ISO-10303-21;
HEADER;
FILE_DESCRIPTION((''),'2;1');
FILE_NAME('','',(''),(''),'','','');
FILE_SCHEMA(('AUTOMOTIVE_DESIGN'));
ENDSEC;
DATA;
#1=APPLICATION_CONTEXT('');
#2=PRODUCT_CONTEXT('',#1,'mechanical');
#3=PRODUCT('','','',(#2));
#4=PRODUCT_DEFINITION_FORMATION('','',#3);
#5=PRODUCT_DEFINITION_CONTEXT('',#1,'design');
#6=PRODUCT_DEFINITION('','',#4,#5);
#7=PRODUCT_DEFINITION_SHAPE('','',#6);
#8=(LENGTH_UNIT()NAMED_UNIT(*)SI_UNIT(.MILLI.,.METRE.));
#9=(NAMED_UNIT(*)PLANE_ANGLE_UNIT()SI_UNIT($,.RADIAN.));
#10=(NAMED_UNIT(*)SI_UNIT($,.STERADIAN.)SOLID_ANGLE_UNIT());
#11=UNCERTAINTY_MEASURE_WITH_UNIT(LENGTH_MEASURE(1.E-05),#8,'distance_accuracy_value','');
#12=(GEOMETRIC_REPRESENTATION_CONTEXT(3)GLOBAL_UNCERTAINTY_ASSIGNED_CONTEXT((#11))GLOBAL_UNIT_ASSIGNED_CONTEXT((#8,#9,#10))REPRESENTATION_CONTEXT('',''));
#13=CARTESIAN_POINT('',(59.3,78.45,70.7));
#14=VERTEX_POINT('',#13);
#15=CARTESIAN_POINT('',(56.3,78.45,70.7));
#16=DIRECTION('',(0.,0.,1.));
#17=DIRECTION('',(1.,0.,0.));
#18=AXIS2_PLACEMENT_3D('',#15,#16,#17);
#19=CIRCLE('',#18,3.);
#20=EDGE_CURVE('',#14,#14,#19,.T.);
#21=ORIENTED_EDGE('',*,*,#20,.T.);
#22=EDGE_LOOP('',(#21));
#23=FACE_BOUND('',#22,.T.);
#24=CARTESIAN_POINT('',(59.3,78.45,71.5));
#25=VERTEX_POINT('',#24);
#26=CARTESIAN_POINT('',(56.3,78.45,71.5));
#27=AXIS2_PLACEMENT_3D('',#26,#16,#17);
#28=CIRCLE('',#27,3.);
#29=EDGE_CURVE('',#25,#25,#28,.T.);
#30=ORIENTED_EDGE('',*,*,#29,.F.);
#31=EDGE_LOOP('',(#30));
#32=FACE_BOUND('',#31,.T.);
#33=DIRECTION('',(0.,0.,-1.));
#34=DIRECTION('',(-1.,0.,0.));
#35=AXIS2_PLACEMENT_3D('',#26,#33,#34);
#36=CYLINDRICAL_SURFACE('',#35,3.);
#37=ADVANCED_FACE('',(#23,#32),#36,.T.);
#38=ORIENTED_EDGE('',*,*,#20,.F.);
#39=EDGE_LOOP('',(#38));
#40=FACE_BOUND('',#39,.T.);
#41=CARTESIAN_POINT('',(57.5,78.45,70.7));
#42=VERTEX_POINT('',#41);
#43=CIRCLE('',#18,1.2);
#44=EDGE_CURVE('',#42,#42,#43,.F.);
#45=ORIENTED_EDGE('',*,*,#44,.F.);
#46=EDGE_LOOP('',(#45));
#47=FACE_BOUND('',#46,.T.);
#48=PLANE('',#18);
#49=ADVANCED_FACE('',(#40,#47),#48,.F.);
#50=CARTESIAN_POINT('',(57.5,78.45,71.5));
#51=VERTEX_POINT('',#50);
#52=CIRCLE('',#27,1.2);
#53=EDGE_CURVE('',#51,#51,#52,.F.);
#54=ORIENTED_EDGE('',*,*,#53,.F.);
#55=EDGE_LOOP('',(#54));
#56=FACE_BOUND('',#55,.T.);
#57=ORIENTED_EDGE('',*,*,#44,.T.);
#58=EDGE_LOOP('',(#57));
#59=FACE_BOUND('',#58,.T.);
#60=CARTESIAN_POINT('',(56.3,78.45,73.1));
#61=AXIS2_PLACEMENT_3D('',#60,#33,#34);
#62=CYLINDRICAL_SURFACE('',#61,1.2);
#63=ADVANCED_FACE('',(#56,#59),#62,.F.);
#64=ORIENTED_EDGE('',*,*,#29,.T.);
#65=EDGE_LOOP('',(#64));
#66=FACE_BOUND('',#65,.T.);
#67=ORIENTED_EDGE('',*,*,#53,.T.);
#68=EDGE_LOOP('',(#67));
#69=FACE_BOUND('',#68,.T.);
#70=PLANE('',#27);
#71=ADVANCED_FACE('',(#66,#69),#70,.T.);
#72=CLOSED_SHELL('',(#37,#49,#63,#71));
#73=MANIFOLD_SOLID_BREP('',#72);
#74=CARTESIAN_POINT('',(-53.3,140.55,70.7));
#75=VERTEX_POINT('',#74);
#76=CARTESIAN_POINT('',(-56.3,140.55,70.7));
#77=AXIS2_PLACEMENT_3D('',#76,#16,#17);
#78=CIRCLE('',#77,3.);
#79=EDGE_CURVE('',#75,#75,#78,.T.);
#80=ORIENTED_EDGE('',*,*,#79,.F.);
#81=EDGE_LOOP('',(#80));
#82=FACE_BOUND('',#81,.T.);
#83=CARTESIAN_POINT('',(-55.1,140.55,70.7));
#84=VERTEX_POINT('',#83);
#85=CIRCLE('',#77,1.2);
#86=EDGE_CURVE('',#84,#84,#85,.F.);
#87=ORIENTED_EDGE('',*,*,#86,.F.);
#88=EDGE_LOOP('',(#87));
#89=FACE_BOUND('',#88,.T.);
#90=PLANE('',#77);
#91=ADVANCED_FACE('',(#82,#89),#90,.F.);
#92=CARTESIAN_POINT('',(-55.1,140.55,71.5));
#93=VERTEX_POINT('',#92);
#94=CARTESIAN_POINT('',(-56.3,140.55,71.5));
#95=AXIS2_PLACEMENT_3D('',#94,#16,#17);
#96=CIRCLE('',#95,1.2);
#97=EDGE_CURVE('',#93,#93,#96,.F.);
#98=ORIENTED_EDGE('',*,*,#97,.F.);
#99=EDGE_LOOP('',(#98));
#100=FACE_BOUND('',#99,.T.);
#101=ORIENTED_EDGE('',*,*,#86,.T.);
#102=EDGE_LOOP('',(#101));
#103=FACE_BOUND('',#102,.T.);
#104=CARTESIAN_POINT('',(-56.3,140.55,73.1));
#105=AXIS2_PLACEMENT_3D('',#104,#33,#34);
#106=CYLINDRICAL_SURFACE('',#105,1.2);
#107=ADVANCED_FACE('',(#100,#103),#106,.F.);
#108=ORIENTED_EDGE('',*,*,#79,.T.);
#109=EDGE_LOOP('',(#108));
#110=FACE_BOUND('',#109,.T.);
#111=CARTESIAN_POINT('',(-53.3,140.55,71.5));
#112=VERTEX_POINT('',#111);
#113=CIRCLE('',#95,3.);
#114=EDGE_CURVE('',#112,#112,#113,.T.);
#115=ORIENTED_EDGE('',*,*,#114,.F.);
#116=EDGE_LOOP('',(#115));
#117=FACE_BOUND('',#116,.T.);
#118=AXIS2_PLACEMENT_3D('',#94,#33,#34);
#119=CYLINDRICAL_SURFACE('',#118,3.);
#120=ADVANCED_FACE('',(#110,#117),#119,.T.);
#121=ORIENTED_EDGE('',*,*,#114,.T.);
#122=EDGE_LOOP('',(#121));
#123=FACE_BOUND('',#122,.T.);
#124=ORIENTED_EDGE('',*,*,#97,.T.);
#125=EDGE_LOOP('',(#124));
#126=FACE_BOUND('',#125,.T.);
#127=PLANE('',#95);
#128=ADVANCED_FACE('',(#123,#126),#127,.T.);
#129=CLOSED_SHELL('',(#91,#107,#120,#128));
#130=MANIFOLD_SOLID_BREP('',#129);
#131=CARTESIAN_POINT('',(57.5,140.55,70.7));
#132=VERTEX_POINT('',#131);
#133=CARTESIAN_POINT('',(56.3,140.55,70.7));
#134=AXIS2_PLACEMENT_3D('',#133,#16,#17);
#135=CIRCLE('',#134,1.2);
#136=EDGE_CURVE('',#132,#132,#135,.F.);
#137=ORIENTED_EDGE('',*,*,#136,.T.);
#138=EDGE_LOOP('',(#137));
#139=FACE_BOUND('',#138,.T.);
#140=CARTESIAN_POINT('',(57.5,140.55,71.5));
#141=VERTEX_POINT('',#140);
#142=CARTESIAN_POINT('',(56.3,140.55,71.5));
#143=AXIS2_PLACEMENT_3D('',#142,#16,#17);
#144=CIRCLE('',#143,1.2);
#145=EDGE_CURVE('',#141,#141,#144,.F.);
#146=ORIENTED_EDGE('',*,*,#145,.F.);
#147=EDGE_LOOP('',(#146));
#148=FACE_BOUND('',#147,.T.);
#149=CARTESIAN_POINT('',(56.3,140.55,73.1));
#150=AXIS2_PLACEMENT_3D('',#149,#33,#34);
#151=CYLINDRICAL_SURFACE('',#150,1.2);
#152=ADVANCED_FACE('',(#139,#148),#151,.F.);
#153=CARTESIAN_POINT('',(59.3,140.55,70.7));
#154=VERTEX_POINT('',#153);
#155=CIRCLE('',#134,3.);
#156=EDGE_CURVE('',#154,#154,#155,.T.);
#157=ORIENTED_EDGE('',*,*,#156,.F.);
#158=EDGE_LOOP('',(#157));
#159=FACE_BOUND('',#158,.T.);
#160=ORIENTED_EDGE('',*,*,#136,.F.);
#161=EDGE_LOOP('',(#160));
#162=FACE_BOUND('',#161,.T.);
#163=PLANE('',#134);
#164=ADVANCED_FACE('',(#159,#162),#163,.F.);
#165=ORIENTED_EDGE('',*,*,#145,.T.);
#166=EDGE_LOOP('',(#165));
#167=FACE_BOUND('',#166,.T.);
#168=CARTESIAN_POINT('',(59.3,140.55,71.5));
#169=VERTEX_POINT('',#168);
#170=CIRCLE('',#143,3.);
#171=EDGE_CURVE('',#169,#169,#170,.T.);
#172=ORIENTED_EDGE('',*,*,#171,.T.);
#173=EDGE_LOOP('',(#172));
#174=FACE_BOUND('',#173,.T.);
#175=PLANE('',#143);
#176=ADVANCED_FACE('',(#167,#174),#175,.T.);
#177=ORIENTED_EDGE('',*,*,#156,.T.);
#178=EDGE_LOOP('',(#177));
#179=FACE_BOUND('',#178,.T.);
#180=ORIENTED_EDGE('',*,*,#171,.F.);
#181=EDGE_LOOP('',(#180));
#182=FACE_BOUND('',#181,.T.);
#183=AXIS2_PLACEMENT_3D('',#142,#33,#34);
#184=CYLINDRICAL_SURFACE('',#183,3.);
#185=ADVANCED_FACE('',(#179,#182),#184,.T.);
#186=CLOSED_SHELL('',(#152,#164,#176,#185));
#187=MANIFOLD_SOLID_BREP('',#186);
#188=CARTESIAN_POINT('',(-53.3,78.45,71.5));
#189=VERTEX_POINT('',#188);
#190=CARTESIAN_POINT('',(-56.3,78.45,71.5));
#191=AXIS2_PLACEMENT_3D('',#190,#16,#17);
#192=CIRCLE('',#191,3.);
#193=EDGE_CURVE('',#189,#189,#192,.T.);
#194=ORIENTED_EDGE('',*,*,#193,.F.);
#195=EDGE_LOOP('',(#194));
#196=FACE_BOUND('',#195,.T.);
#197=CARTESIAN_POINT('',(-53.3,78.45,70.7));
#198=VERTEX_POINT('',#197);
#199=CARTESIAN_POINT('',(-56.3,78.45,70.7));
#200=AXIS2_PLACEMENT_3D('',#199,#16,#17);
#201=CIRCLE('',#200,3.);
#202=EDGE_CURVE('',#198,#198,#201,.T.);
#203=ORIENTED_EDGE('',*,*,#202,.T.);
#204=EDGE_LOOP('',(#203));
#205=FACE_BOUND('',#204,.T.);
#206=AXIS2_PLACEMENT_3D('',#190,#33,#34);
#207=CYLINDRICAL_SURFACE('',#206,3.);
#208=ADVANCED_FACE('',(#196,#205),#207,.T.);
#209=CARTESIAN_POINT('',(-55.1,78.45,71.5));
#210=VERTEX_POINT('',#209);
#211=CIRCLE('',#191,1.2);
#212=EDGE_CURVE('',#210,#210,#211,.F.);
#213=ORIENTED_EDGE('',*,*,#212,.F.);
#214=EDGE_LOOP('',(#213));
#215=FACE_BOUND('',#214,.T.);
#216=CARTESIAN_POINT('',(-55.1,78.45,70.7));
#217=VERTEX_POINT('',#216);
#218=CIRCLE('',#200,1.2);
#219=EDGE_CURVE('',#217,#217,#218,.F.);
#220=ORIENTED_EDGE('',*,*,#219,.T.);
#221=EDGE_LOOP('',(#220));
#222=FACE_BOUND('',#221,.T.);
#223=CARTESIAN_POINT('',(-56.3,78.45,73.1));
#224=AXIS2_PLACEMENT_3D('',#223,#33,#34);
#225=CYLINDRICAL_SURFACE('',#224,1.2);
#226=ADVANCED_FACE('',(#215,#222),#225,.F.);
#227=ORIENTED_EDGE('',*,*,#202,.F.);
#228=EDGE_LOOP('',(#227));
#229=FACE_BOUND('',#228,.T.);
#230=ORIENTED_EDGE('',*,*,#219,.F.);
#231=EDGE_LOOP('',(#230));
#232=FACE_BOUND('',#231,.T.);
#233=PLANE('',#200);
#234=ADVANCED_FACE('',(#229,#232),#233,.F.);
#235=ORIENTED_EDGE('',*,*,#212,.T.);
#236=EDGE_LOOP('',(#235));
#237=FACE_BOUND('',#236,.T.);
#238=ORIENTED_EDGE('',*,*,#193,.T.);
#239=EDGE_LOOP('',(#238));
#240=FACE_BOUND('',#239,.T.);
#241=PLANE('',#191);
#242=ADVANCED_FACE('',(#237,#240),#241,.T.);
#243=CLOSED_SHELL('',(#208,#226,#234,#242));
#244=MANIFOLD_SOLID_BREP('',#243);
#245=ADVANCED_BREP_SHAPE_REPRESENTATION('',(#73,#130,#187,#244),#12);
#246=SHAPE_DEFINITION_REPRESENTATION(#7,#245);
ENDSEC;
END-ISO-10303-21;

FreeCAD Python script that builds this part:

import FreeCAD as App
import Part
import Sketcher
from FreeCAD import Vector

doc = App.newDocument("Part")
body = doc.addObject("PartDesign::Body", "Body")

# Sketch on XY plane
sketch1 = body.newObject("Sketcher::SketchObject", "Sketch")
sketch1.AttachmentSupport = (doc.getObject("XY_Plane"), [""])
sketch1.MapMode = "FlatFace"
sketch1.AttachmentOffset = App.Placement(Vector(0, 0, 70.7), App.Rotation())
sketch1.addGeometry(Part.Circle(Vector(-56.3, 78.45, 0), Vector(0, 0, 1), 3), False)
sketch1.addConstraint([
    Sketcher.Constraint("Diameter", 0, 6.0),
    Sketcher.Constraint("DistanceX", 0, 3, -1, 1, 56.3),
    Sketcher.Constraint("DistanceY", -1, 1, 0, 3, 78.45),
])
pad1 = body.newObject("PartDesign::Pad", "Pad")
pad1.Profile = sketch1
pad1.Length = 0.8
body2 = doc.addObject("PartDesign::Body", "Body001")

# Sketch on XY plane
sketch2 = body2.newObject("Sketcher::SketchObject", "Sketch001")
sketch2.AttachmentSupport = (doc.getObject("XY_Plane001"), [""])
sketch2.MapMode = "FlatFace"
sketch2.AttachmentOffset = App.Placement(Vector(0, 0, 70.1), App.Rotation())
sketch2.addGeometry(Part.Circle(Vector(-56.3, 78.45, 0), Vector(0, 0, 1), 1.2), False)
sketch2.addConstraint([
    Sketcher.Constraint("Diameter", 0, 2.4),
    Sketcher.Constraint("DistanceX", 0, 3, -1, 1, 56.3),
    Sketcher.Constraint("DistanceY", -1, 1, 0, 3, 78.45),
])
pad2 = body2.newObject("PartDesign::Pad", "Pad001")
pad2.Profile = sketch2
pad2.Length = 3
doc.recompute()

boolean = body.newObject("PartDesign::Boolean", "Boolean")
boolean.Type = "Cut"
boolean.addObjects([body2])
body3 = doc.addObject("PartDesign::Body", "Body002")

# Sketch on XY plane
sketch3 = body3.newObject("Sketcher::SketchObject", "Sketch002")
sketch3.AttachmentSupport = (doc.getObject("XY_Plane002"), [""])
sketch3.MapMode = "FlatFace"
sketch3.AttachmentOffset = App.Placement(Vector(0, 0, 70.7), App.Rotation())
sketch3.addGeometry(Part.Circle(Vector(-56.3, 140.55, 0), Vector(0, 0, 1), 3), False)
sketch3.addConstraint([
    Sketcher.Constraint("Diameter", 0, 6.0),
    Sketcher.Constraint("DistanceX", 0, 3, -1, 1, 56.3),
    Sketcher.Constraint("DistanceY", -1, 1, 0, 3, 140.55),
])
pad3 = body3.newObject("PartDesign::Pad", "Pad002")
pad3.Profile = sketch3
pad3.Length = 0.8
body4 = doc.addObject("PartDesign::Body", "Body003")

# Sketch on XY plane
sketch4 = body4.newObject("Sketcher::SketchObject", "Sketch003")
sketch4.AttachmentSupport = (doc.getObject("XY_Plane003"), [""])
sketch4.MapMode = "FlatFace"
sketch4.AttachmentOffset = App.Placement(Vector(0, 0, 70.1), App.Rotation())
sketch4.addGeometry(Part.Circle(Vector(-56.3, 140.55, 0), Vector(0, 0, 1), 1.2), False)
sketch4.addConstraint([
    Sketcher.Constraint("Diameter", 0, 2.4),
    Sketcher.Constraint("DistanceX", 0, 3, -1, 1, 56.3),
    Sketcher.Constraint("DistanceY", -1, 1, 0, 3, 140.55),
])
pad4 = body4.newObject("PartDesign::Pad", "Pad003")
pad4.Profile = sketch4
pad4.Length = 3
doc.recompute()

boolean2 = body3.newObject("PartDesign::Boolean", "Boolean001")
boolean2.Type = "Cut"
boolean2.addObjects([body4])
body5 = doc.addObject("PartDesign::Body", "Body004")

# Sketch on XY plane
sketch5 = body5.newObject("Sketcher::SketchObject", "Sketch004")
sketch5.AttachmentSupport = (doc.getObject("XY_Plane004"), [""])
sketch5.MapMode = "FlatFace"
sketch5.AttachmentOffset = App.Placement(Vector(0, 0, 70.7), App.Rotation())
sketch5.addGeometry(Part.Circle(Vector(56.3, 78.45, 0), Vector(0, 0, 1), 3), False)
sketch5.addConstraint([
    Sketcher.Constraint("Diameter", 0, 6.0),
    Sketcher.Constraint("DistanceX", -1, 1, 0, 3, 56.3),
    Sketcher.Constraint("DistanceY", -1, 1, 0, 3, 78.45),
])
pad5 = body5.newObject("PartDesign::Pad", "Pad004")
pad5.Profile = sketch5
pad5.Length = 0.8
body6 = doc.addObject("PartDesign::Body", "Body005")

# Sketch on XY plane
sketch6 = body6.newObject("Sketcher::SketchObject", "Sketch005")
sketch6.AttachmentSupport = (doc.getObject("XY_Plane005"), [""])
sketch6.MapMode = "FlatFace"
sketch6.AttachmentOffset = App.Placement(Vector(0, 0, 70.1), App.Rotation())
sketch6.addGeometry(Part.Circle(Vector(56.3, 78.45, 0), Vector(0, 0, 1), 1.2), False)
sketch6.addConstraint([
    Sketcher.Constraint("Diameter", 0, 2.4),
    Sketcher.Constraint("DistanceX", -1, 1, 0, 3, 56.3),
    Sketcher.Constraint("DistanceY", -1, 1, 0, 3, 78.45),
])
pad6 = body6.newObject("PartDesign::Pad", "Pad005")
pad6.Profile = sketch6
pad6.Length = 3
doc.recompute()

boolean3 = body5.newObject("PartDesign::Boolean", "Boolean002")
boolean3.Type = "Cut"
boolean3.addObjects([body6])
body7 = doc.addObject("PartDesign::Body", "Body006")

# Sketch on XY plane
sketch7 = body7.newObject("Sketcher::SketchObject", "Sketch006")
sketch7.AttachmentSupport = (doc.getObject("XY_Plane006"), [""])
sketch7.MapMode = "FlatFace"
sketch7.AttachmentOffset = App.Placement(Vector(0, 0, 70.7), App.Rotation())
sketch7.addGeometry(Part.Circle(Vector(56.3, 140.55, 0), Vector(0, 0, 1), 3), False)
sketch7.addConstraint([
    Sketcher.Constraint("Diameter", 0, 6.0),
    Sketcher.Constraint("DistanceX", -1, 1, 0, 3, 56.3),
    Sketcher.Constraint("DistanceY", -1, 1, 0, 3, 140.55),
])
pad7 = body7.newObject("PartDesign::Pad", "Pad006")
pad7.Profile = sketch7
pad7.Length = 0.8
body8 = doc.addObject("PartDesign::Body", "Body007")

# Sketch on XY plane
sketch8 = body8.newObject("Sketcher::SketchObject", "Sketch007")
sketch8.AttachmentSupport = (doc.getObject("XY_Plane007"), [""])
sketch8.MapMode = "FlatFace"
sketch8.AttachmentOffset = App.Placement(Vector(0, 0, 70.1), App.Rotation())
sketch8.addGeometry(Part.Circle(Vector(56.3, 140.55, 0), Vector(0, 0, 1), 1.2), False)
sketch8.addConstraint([
    Sketcher.Constraint("Diameter", 0, 2.4),
    Sketcher.Constraint("DistanceX", -1, 1, 0, 3, 56.3),
    Sketcher.Constraint("DistanceY", -1, 1, 0, 3, 140.55),
])
pad8 = body8.newObject("PartDesign::Pad", "Pad007")
pad8.Profile = sketch8
pad8.Length = 3
doc.recompute()

boolean4 = body7.newObject("PartDesign::Boolean", "Boolean003")
boolean4.Type = "Cut"
boolean4.addObjects([body8])

doc.recompute()
